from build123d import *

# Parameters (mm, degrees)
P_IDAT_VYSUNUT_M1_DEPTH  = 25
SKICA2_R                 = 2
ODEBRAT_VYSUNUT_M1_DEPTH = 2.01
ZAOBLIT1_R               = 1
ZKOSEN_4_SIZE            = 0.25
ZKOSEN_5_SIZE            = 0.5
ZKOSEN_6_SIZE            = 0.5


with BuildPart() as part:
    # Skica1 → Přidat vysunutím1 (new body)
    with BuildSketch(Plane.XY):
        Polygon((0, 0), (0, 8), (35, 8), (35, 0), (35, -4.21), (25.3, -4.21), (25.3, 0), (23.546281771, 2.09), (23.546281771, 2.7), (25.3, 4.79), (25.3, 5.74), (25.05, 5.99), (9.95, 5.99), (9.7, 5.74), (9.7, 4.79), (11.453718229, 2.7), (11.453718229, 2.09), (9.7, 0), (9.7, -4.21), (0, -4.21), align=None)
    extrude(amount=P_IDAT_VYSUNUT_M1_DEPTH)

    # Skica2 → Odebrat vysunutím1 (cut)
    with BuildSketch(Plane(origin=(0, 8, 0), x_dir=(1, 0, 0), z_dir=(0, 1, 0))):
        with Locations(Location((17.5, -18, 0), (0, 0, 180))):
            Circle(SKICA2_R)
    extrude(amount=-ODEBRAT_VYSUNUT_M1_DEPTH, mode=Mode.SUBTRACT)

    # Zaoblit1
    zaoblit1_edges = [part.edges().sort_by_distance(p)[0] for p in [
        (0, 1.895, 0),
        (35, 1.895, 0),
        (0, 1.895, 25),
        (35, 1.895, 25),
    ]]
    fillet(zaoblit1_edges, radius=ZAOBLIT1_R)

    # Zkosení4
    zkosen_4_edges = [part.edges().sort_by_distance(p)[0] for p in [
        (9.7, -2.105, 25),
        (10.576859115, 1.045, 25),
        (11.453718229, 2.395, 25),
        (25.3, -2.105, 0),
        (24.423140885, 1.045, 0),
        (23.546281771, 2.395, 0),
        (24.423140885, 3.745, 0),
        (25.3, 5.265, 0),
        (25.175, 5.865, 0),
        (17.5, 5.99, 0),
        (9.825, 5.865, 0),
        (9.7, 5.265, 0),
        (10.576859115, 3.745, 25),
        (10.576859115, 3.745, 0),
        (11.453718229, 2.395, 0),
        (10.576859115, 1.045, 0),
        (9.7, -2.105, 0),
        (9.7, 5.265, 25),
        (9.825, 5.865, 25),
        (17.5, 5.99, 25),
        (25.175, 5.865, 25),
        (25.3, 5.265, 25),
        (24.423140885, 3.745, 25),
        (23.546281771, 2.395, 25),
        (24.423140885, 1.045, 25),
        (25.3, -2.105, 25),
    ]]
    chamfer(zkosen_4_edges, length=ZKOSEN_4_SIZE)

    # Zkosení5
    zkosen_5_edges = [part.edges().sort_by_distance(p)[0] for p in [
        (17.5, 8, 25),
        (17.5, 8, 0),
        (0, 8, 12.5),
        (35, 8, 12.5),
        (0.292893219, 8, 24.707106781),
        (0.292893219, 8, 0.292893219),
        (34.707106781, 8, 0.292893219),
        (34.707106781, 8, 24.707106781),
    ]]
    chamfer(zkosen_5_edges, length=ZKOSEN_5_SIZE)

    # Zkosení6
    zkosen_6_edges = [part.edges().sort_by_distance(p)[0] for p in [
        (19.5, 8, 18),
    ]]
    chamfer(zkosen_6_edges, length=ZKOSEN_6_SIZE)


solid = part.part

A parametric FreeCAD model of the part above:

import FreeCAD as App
import Part
import Sketcher

V = App.Vector
Q = App.Units.Quantity


def edges_at(feature, points):
    """Names of the edges that pass closest to the given points."""
    edges = feature.Shape.Edges
    near = lambda p: min(range(len(edges)), key=lambda i: edges[i].distToShape(Part.Vertex(*p))[0])
    return sorted({f"Edge{near(p) + 1}" for p in points})

doc = App.newDocument("Part")
body = doc.addObject("PartDesign::Body", "Body")

sketch1 = body.newObject("Sketcher::SketchObject", "Sketch")
sketch1.AttachmentSupport = (doc.getObject("XY_Plane"), [""])
sketch1.MapMode = "FlatFace"
sketch1.addGeometry([
    Part.LineSegment(V(0, 8, 0), V(0, -4.21, 0)),
    Part.LineSegment(V(0, -4.21, 0), V(9.7, -4.21, 0)),
    Part.LineSegment(V(9.7, -4.21, 0), V(9.7, 0, 0)),
    Part.LineSegment(V(9.7, 0, 0), V(11.45, 2.09, 0)),
    Part.LineSegment(V(11.45, 2.09, 0), V(11.45, 2.7, 0)),
    Part.LineSegment(V(11.45, 2.7, 0), V(9.7, 4.79, 0)),
    Part.LineSegment(V(9.7, 4.79, 0), V(9.7, 5.74, 0)),
    Part.LineSegment(V(9.7, 5.74, 0), V(9.95, 5.99, 0)),
    Part.LineSegment(V(9.95, 5.99, 0), V(25.05, 5.99, 0)),
    Part.LineSegment(V(25.05, 5.99, 0), V(25.3, 5.74, 0)),
    Part.LineSegment(V(25.3, 5.74, 0), V(25.3, 4.79, 0)),
    Part.LineSegment(V(25.3, 4.79, 0), V(23.55, 2.7, 0)),
    Part.LineSegment(V(23.55, 2.7, 0), V(23.55, 2.09, 0)),
    Part.LineSegment(V(23.55, 2.09, 0), V(25.3, 0, 0)),
    Part.LineSegment(V(25.3, 0, 0), V(25.3, -4.21, 0)),
    Part.LineSegment(V(25.3, -4.21, 0), V(35, -4.21, 0)),
    Part.LineSegment(V(35, -4.21, 0), V(35, 8, 0)),
    Part.LineSegment(V(35, 8, 0), V(0, 8, 0)),
], False)
sketch1.addConstraint([
    Sketcher.Constraint("Coincident", 0, 2, 1, 1),
    Sketcher.Constraint("Coincident", 1, 2, 2, 1),
    Sketcher.Constraint("Coincident", 2, 2, 3, 1),
    Sketcher.Constraint("Coincident", 3, 2, 4, 1),
    Sketcher.Constraint("Coincident", 4, 2, 5, 1),
    Sketcher.Constraint("Coincident", 5, 2, 6, 1),
    Sketcher.Constraint("Coincident", 6, 2, 7, 1),
    Sketcher.Constraint("Coincident", 7, 2, 8, 1),
    Sketcher.Constraint("Coincident", 8, 2, 9, 1),
    Sketcher.Constraint("Coincident", 9, 2, 10, 1),
    Sketcher.Constraint("Coincident", 10, 2, 11, 1),
    Sketcher.Constraint("Coincident", 11, 2, 12, 1),
    Sketcher.Constraint("Coincident", 12, 2, 13, 1),
    Sketcher.Constraint("Coincident", 13, 2, 14, 1),
    Sketcher.Constraint("Coincident", 14, 2, 15, 1),
    Sketcher.Constraint("Coincident", 15, 2, 16, 1),
    Sketcher.Constraint("Coincident", 16, 2, 17, 1),
    Sketcher.Constraint("Coincident", 17, 2, 0, 1),
    Sketcher.Constraint("Vertical", 0),
    Sketcher.Constraint("Horizontal", 1),
    Sketcher.Constraint("Vertical", 2),
    Sketcher.Constraint("Vertical", 4),
    Sketcher.Constraint("Vertical", 6),
    Sketcher.Constraint("Horizontal", 8),
    Sketcher.Constraint("Vertical", 10),
    Sketcher.Constraint("Vertical", 12),
    Sketcher.Constraint("Vertical", 14),
    Sketcher.Constraint("Horizontal", 15),
    Sketcher.Constraint("Vertical", 16),
    Sketcher.Constraint("Horizontal", 17),
    Sketcher.Constraint("PointOnObject", 0, 2, -2),
    Sketcher.Constraint("PointOnObject", 2, 2, -1),
    Sketcher.Constraint("PointOnObject", 13, 2, -1),
    Sketcher.Constraint("Perpendicular", 7, 9),
    Sketcher.Constraint("Parallel", 3, 11),
    Sketcher.Constraint("Parallel", 5, 13),
    Sketcher.Constraint("Horizontal", 6, 2, 9, 2),
    Sketcher.Constraint("Horizontal", 5, 2, 10, 2),
    Sketcher.Constraint("Horizontal", 4, 2, 11, 2),
    Sketcher.Constraint("Horizontal", 3, 2, 12, 2),
    Sketcher.Constraint("Horizontal", 1, 2, 14, 2),
    Sketcher.Constraint("Vertical", 2, 2, 5, 2),
    Sketcher.Constraint("Vertical", 10, 2, 13, 2),
    Sketcher.Constraint("Equal", 1, 15),
    Sketcher.Constraint("Equal", 7, 9),
    Sketcher.Constraint("DistanceX", 17, 2, 17, 1, Q("35 mm")),
    Sketcher.Constraint("Angle", 3, Q("50 deg")),
    Sketcher.Constraint("DistanceX", 1, 1, 1, 2, Q("9.7 mm")),
    Sketcher.Constraint("DistanceX", 8, 1, 8, 2, Q("15.1 mm")),
    Sketcher.Constraint("DistanceY", -1, 1, 16, 2, Q("8 mm")),
    Sketcher.Constraint("DistanceY", 1, 2, 5, 2, Q("9 mm")),
    Sketcher.Constraint("DistanceY", 0, 2, 0, 1, Q("12.21 mm")),
    Sketcher.Constraint("DistanceY", 4, 1, 4, 2, Q("0.61 mm")),
    Sketcher.Constraint("DistanceY", 6, 1, 6, 2, Q("0.95 mm")),
])
pad1 = body.newObject("PartDesign::Pad", "Pad")
pad1.Profile = sketch1
pad1.Length = 25

sketch2 = body.newObject("Sketcher::SketchObject", "Sketch001")
sketch2.AttachmentSupport = (doc.getObject("XZ_Plane"), [""])
sketch2.MapMode = "FlatFace"
sketch2.AttachmentOffset = App.Placement(V(0, 0, -8), App.Rotation())
sketch2.addGeometry(Part.Circle(V(17.5, 18, 0), V(0, 0, 1), 2), False)
sketch2.addConstraint([
    Sketcher.Constraint("Diameter", 0, Q("4 mm")),
    Sketcher.Constraint("DistanceY", -1, 1, 0, 3, Q("18 mm")),
    Sketcher.Constraint("DistanceX", -1, 1, 0, 3, Q("17.5 mm")),
])
pocket1 = body.newObject("PartDesign::Pocket", "Pocket")
pocket1.Profile = sketch2
pocket1.Length = 2.01
pocket1.Reversed = True
doc.recompute()

fillet = body.newObject("PartDesign::Fillet", "Fillet")
fillet.Base = (pocket1, edges_at(pocket1, [
    (0, 1.895, 0),
    (35, 1.895, 0),
    (0, 1.895, 25),
    (35, 1.895, 25),
]))
fillet.Radius = 1
doc.recompute()

chamfer = body.newObject("PartDesign::Chamfer", "Chamfer")
chamfer.Base = (fillet, edges_at(fillet, [
    (9.7, -2.105, 25),
    (10.577, 1.045, 25),
    (11.454, 2.395, 25),
    (25.3, -2.105, 0),
    (24.423, 1.045, 0),
    (23.546, 2.395, 0),
    (24.423, 3.745, 0),
    (25.3, 5.265, 0),
    (25.175, 5.865, 0),
    (17.5, 5.99, 0),
    (9.825, 5.865, 0),
    (9.7, 5.265, 0),
    (10.577, 3.745, 25),
    (10.577, 3.745, 0),
    (11.454, 2.395, 0),
    (10.577, 1.045, 0),
    (9.7, -2.105, 0),
    (9.7, 5.265, 25),
    (9.825, 5.865, 25),
    (17.5, 5.99, 25),
    (25.175, 5.865, 25),
    (25.3, 5.265, 25),
    (24.423, 3.745, 25),
    (23.546, 2.395, 25),
    (24.423, 1.045, 25),
    (25.3, -2.105, 25),
]))
chamfer.Size = 0.25
doc.recompute()

chamfer2 = body.newObject("PartDesign::Chamfer", "Chamfer001")
chamfer2.Base = (chamfer, edges_at(chamfer, [
    (17.5, 8, 25),
    (17.5, 8, 0),
    (0, 8, 12.5),
    (35, 8, 12.5),
    (0.293, 8, 24.707),
    (0.293, 8, 0.293),
    (34.707, 8, 0.293),
    (34.707, 8, 24.707),
]))
chamfer2.Size = 0.5
doc.recompute()

chamfer3 = body.newObject("PartDesign::Chamfer", "Chamfer002")
chamfer3.Base = (chamfer2, edges_at(chamfer2, [(19.5, 8, 18)]))
chamfer3.Size = 0.5

doc.recompute()
